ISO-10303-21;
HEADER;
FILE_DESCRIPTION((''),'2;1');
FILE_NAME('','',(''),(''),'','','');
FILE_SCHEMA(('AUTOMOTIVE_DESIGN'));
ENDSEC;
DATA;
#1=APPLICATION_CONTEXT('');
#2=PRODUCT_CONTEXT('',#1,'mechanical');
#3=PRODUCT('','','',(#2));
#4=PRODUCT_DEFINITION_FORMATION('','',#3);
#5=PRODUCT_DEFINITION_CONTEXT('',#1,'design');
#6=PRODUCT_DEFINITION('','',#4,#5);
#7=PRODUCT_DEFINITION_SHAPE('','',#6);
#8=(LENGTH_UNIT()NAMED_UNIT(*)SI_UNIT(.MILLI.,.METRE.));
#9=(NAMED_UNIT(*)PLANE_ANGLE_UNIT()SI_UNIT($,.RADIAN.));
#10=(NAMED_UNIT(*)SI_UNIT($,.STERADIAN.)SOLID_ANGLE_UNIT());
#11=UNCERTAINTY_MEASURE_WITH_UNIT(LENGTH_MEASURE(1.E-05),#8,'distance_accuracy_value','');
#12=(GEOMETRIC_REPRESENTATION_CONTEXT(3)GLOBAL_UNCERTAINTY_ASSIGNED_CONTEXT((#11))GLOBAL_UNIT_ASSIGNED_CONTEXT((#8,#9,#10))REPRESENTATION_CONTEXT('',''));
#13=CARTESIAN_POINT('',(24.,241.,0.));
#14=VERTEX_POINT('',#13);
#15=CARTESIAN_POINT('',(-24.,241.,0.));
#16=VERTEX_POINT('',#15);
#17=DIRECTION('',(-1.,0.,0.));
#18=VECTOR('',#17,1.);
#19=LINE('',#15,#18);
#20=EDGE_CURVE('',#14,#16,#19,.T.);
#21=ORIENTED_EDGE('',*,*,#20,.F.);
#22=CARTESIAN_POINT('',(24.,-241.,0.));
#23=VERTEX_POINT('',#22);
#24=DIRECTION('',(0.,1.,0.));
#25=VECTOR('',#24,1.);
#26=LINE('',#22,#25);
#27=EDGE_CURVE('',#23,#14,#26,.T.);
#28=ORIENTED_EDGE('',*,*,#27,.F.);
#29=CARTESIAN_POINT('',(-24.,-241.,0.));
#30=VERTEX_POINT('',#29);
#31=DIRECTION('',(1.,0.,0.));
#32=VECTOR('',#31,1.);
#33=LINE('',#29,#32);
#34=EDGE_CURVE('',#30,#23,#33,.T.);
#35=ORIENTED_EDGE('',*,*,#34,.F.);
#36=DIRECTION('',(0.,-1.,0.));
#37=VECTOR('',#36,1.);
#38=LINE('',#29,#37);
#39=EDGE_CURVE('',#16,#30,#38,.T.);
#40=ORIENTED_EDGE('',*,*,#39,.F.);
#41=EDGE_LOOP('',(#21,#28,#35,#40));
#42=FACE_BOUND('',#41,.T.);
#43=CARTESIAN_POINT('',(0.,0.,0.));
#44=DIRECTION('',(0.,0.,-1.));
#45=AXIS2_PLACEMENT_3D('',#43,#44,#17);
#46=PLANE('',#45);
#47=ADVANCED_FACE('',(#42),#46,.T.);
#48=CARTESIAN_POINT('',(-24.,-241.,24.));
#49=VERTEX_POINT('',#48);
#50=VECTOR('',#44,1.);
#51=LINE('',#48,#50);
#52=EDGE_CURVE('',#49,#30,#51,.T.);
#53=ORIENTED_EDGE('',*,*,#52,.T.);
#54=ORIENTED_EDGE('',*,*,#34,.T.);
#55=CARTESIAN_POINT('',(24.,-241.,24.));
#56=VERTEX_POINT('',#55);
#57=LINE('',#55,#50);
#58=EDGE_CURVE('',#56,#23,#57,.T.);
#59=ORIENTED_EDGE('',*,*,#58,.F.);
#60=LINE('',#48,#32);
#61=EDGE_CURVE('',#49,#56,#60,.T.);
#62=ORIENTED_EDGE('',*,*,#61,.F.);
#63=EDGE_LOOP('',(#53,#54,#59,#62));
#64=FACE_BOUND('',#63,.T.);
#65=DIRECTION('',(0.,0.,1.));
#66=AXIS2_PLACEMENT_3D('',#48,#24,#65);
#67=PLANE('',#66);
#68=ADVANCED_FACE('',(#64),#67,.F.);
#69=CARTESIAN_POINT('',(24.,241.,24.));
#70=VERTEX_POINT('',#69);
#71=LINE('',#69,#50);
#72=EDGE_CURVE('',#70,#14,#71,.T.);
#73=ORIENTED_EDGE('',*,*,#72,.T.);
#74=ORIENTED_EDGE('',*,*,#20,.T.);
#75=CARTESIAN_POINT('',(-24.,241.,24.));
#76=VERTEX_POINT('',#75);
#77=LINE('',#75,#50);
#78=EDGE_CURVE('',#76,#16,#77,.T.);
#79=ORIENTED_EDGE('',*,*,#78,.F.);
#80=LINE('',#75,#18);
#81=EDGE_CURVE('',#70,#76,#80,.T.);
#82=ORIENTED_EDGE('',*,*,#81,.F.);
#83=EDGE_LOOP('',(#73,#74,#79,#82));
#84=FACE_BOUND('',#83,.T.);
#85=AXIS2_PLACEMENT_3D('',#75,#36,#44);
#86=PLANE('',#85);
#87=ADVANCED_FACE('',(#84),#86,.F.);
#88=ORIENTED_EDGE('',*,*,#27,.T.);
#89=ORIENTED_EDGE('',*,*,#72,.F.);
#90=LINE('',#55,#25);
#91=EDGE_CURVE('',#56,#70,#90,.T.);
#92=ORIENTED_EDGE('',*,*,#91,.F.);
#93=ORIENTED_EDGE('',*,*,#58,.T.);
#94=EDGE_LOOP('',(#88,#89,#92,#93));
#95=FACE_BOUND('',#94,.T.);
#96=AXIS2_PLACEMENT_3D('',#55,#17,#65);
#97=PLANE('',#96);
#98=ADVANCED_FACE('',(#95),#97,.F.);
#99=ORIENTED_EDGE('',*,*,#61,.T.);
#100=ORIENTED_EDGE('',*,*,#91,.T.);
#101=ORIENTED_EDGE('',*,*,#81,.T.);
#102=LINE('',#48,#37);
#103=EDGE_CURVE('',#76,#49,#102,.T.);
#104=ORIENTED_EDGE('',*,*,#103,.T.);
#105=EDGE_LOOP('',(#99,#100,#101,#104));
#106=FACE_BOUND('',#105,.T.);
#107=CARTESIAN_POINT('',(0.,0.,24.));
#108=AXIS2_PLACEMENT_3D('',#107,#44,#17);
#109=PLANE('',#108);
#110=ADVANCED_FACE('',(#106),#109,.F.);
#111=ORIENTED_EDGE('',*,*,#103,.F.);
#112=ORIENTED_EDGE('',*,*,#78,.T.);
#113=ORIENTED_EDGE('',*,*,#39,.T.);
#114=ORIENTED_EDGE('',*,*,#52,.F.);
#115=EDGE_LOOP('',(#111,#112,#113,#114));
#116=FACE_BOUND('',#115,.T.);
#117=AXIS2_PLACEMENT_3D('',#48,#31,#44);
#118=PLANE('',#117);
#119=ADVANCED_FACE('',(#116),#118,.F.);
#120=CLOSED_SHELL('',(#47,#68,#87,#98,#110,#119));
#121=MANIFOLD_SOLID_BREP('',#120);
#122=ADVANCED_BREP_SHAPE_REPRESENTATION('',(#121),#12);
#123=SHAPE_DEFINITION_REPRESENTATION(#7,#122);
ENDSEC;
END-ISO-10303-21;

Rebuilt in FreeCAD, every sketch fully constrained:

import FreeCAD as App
import Part
import Sketcher
Q = App.Units.Quantity

doc = App.newDocument("Part")
body = doc.addObject("PartDesign::Body", "Body")

# Sketch on XY plane
sketch1 = body.newObject("Sketcher::SketchObject", "Sketch")
sketch1.AttachmentSupport = (doc.getObject("XY_Plane"), [""])
sketch1.MapMode = "FlatFace"
sketch1.addGeometry([
    Part.LineSegment(App.Vector(-24, 241, 0), App.Vector(-24, -241, 0)),
    Part.LineSegment(App.Vector(-24, -241, 0), App.Vector(24, -241, 0)),
    Part.LineSegment(App.Vector(24, -241, 0), App.Vector(24, 241, 0)),
    Part.LineSegment(App.Vector(24, 241, 0), App.Vector(-24, 241, 0)),
], False)
sketch1.addConstraint([
    Sketcher.Constraint("Coincident", 0, 2, 1, 1),
    Sketcher.Constraint("Coincident", 1, 2, 2, 1),
    Sketcher.Constraint("Coincident", 2, 2, 3, 1),
    Sketcher.Constraint("Coincident", 3, 2, 0, 1),
    Sketcher.Constraint("Vertical", 0),
    Sketcher.Constraint("Horizontal", 1),
    Sketcher.Constraint("Vertical", 2),
    Sketcher.Constraint("Horizontal", 3),
    Sketcher.Constraint("Symmetric", 0, 2, 2, 2, -1, 1),
    Sketcher.Constraint("DistanceX", 1, 1, 1, 2, Q("48 mm")),
    Sketcher.Constraint("DistanceY", 0, 2, 0, 1, Q("482 mm")),
])
pad1 = body.newObject("PartDesign::Pad", "Pad")
pad1.Profile = sketch1
pad1.Length = 24

doc.recompute()
